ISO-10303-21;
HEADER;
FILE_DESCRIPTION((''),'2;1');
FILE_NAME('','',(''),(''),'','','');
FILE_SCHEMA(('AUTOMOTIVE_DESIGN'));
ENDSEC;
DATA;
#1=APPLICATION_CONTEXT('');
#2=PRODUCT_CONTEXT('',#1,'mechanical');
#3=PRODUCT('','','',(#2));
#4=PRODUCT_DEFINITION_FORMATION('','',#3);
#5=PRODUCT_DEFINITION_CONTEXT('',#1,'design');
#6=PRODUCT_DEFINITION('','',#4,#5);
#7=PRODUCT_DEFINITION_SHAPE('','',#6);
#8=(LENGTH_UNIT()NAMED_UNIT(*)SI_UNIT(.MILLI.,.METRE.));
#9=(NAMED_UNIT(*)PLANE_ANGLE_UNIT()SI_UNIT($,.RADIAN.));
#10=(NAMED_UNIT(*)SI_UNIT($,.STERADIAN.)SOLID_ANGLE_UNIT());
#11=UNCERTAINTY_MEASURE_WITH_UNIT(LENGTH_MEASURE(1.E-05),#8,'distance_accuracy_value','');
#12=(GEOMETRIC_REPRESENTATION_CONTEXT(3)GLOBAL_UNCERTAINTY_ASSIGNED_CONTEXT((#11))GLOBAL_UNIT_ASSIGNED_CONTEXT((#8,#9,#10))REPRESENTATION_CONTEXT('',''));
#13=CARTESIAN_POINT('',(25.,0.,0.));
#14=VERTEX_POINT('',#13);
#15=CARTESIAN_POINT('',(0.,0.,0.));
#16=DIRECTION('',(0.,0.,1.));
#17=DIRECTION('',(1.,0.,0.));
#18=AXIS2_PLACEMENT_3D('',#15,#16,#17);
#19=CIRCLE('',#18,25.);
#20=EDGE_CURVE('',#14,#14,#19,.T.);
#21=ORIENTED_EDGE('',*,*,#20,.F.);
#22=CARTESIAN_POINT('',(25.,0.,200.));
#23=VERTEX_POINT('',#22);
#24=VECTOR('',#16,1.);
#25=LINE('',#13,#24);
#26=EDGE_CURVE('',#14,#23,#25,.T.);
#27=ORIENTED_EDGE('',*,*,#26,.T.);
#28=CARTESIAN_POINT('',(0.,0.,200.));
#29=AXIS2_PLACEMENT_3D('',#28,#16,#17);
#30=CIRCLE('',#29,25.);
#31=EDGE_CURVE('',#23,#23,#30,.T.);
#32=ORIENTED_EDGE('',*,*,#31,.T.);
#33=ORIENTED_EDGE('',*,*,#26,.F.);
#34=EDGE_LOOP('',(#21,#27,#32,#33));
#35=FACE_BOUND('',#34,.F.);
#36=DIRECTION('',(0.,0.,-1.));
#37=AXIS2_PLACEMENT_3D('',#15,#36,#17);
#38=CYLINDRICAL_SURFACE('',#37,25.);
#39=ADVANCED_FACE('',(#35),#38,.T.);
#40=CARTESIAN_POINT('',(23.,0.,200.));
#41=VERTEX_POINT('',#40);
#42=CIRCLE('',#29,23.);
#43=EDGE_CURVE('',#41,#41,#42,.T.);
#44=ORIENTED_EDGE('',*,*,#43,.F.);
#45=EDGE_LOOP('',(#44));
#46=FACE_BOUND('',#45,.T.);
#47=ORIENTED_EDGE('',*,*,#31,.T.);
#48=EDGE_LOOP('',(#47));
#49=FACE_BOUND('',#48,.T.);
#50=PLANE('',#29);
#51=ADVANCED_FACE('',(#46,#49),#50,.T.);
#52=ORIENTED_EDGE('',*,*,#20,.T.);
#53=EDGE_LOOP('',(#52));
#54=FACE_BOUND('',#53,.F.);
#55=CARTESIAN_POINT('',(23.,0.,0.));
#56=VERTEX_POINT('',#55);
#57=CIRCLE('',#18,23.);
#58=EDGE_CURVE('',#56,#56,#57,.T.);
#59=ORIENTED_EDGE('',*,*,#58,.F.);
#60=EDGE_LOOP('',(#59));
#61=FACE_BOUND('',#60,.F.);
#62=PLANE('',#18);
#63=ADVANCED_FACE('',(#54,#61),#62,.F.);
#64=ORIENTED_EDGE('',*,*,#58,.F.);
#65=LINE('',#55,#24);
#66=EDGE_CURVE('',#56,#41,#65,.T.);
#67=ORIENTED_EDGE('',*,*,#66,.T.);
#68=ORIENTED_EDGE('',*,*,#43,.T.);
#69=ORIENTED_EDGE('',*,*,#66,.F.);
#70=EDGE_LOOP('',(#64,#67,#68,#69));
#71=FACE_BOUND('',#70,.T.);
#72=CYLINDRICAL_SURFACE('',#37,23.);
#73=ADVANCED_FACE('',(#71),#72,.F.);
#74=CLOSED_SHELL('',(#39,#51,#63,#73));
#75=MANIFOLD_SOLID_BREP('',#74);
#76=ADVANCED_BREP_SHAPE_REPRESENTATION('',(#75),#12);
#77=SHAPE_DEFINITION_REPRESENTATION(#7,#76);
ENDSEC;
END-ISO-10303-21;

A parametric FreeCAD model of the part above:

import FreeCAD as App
import Part
import Sketcher

V = App.Vector
Q = App.Units.Quantity

doc = App.newDocument("Part")
body = doc.addObject("PartDesign::Body", "Body")

sketch1 = body.newObject("Sketcher::SketchObject", "Sketch")
sketch1.AttachmentSupport = (doc.getObject("XY_Plane"), [""])
sketch1.MapMode = "FlatFace"
sketch1.addGeometry([
    Part.Circle(V(0, 0, 0), V(0, 0, 1), 25),
    Part.Circle(V(0, 0, 0), V(0, 0, 1), 23),
], False)
sketch1.addConstraint([
    Sketcher.Constraint("Coincident", 0, 3, -1, 1),
    Sketcher.Constraint("Coincident", 1, 3, -1, 1),
    Sketcher.Constraint("Diameter", 0, Q("50 mm")),
    Sketcher.Constraint("Diameter", 1, Q("46 mm")),
])
pad1 = body.newObject("PartDesign::Pad", "Pad")
pad1.Profile = sketch1
pad1.Length = 200

doc.recompute()
